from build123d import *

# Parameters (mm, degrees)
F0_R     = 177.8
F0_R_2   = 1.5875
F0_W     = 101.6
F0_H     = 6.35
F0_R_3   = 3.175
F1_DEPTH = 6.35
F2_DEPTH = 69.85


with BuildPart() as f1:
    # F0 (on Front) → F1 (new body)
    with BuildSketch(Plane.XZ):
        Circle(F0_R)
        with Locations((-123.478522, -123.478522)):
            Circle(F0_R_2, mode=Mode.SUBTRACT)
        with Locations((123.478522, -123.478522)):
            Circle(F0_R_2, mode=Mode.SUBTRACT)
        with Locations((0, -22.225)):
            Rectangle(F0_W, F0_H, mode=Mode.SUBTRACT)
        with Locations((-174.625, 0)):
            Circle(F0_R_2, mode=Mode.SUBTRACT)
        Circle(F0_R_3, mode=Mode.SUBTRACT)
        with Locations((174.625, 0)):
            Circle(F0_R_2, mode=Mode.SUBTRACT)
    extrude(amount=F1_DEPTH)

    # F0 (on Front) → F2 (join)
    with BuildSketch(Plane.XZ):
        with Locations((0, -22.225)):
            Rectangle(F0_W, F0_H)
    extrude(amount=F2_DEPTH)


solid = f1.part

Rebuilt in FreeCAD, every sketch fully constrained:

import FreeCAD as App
import Part
import Sketcher

V = App.Vector
Q = App.Units.Quantity

doc = App.newDocument("Part")
params = doc.addObject("Spreadsheet::Sheet", "Params")
for row, (alias, value) in enumerate([
    ("sketch1_diameter", "14 in"),
    ("sketch1_diameter2", "0.25 in"),
    ("sketch1_width", "4 in"),
    ("sketch1_diameter3", "0.125 in"),
    ("sketch1_height", "0.25 in"),
    ("pad1_length", "0.25 in"),
    ("sketch2_width", "4 in"),
    ("sketch2_height", "0.25 in"),
    ("pad2_length", "2.75 in"),
], start=1):
    params.set(f"A{row}", alias)
    params.set(f"B{row}", "=" + value)
    params.setAlias(f"B{row}", alias)

body = doc.addObject("PartDesign::Body", "Body")

# Sketch on XZ plane
sketch1 = body.newObject("Sketcher::SketchObject", "Sketch")
sketch1.AttachmentSupport = (doc.getObject("XZ_Plane"), [""])
sketch1.MapMode = "FlatFace"
sketch1.addGeometry(Part.Circle(V(0, 0, 0), V(0, 0, 1), 177.8), False)
sketch1.addGeometry(Part.Circle(V(-123.478522, -123.478522, 0), V(0, 0, 1), 1.5875), False)
sketch1.addGeometry(Part.Circle(V(123.478522, -123.478522, 0), V(0, 0, 1), 1.5875), False)
sketch1.addGeometry(Part.Circle(V(-174.625, 0, 0), V(0, 0, 1), 1.5875), False)
sketch1.addGeometry(Part.LineSegment(V(50.8, -25.4, 0), V(-50.8, -25.4, 0)), False)
sketch1.addGeometry(Part.LineSegment(V(-50.8, -25.4, 0), V(-50.8, -19.05, 0)), False)
sketch1.addGeometry(Part.LineSegment(V(-50.8, -19.05, 0), V(50.8, -19.05, 0)), False)
sketch1.addGeometry(Part.LineSegment(V(50.8, -19.05, 0), V(50.8, -25.4, 0)), False)
sketch1.addGeometry(Part.Circle(V(0, 0, 0), V(0, 0, 1), 3.175), False)
sketch1.addGeometry(Part.Circle(V(174.625, 0, 0), V(0, 0, 1), 1.5875), False)
sketch1.addConstraint(Sketcher.Constraint("Coincident", 4, 2, 5, 1))
sketch1.addConstraint(Sketcher.Constraint("Coincident", 5, 2, 6, 1))
sketch1.addConstraint(Sketcher.Constraint("Coincident", 6, 2, 7, 1))
sketch1.addConstraint(Sketcher.Constraint("Coincident", 7, 2, 4, 1))
sketch1.addConstraint(Sketcher.Constraint("Horizontal", 4))
sketch1.addConstraint(Sketcher.Constraint("Vertical", 5))
sketch1.addConstraint(Sketcher.Constraint("Horizontal", 6))
sketch1.addConstraint(Sketcher.Constraint("Vertical", 7))
sketch1.addConstraint(Sketcher.Constraint("Coincident", 0, 3, -1, 1))
sketch1.addConstraint(Sketcher.Constraint("Coincident", 8, 3, -1, 1))
sketch1.addConstraint(Sketcher.Constraint("Equal", 1, 2))
sketch1.addConstraint(Sketcher.Constraint("Equal", 2, 3))
sketch1.addConstraint(Sketcher.Constraint("Equal", 3, 9))
sketch1.addConstraint(Sketcher.Constraint("Symmetric", 3, 3, 9, 3, -1, 1))
sketch1.addConstraint(Sketcher.Constraint("Symmetric", 1, 3, 2, 3, -2))
sketch1.addConstraint(Sketcher.Constraint("PointOnObject", 3, 3, -1))
sketch1.addConstraint(Sketcher.Constraint("Diameter", 0, Q("14 in")))
sketch1.addConstraint(Sketcher.Constraint("Diameter", 8, Q("0.25 in")))
sketch1.addConstraint(Sketcher.Constraint("DistanceX", 4, 2, 4, 1, Q("4 in")))
sketch1.addConstraint(Sketcher.Constraint("Diameter", 1, Q("0.125 in")))
sketch1.addConstraint(Sketcher.Constraint("DistanceX", 4, 2, -1, 1, Q("2 in")))
sketch1.addConstraint(Sketcher.Constraint("DistanceY", 4, 2, -1, 1, Q("1 in")))
sketch1.addConstraint(Sketcher.Constraint("DistanceY", 5, 1, 5, 2, Q("0.25 in")))
sketch1.addConstraint(Sketcher.Constraint("DistanceX", 3, 3, 9, 3, Q("13.75 in")))
sketch1.addConstraint(Sketcher.Constraint("DistanceX", 1, 3, -1, 1, Q("123.478522 mm")))
sketch1.addConstraint(Sketcher.Constraint("DistanceY", 1, 3, -1, 1, Q("123.478522 mm")))
sketch1.setExpression("Constraints[16]", "Params.sketch1_diameter")
sketch1.setExpression("Constraints[17]", "Params.sketch1_diameter2")
sketch1.setExpression("Constraints[18]", "Params.sketch1_width")
sketch1.setExpression("Constraints[19]", "Params.sketch1_diameter3")
sketch1.setExpression("Constraints[22]", "Params.sketch1_height")
pad1 = body.newObject("PartDesign::Pad", "Pad")
pad1.Profile = sketch1
pad1.setExpression("Length", "Params.pad1_length")

# Sketch on XZ plane
sketch2 = body.newObject("Sketcher::SketchObject", "Sketch001")
sketch2.AttachmentSupport = (doc.getObject("XZ_Plane"), [""])
sketch2.MapMode = "FlatFace"
sketch2.addGeometry(Part.LineSegment(V(-50.8, -19.05, 0), V(-50.8, -25.4, 0)), False)
sketch2.addGeometry(Part.LineSegment(V(-50.8, -25.4, 0), V(50.8, -25.4, 0)), False)
sketch2.addGeometry(Part.LineSegment(V(50.8, -25.4, 0), V(50.8, -19.05, 0)), False)
sketch2.addGeometry(Part.LineSegment(V(50.8, -19.05, 0), V(-50.8, -19.05, 0)), False)
sketch2.addConstraint(Sketcher.Constraint("Coincident", 0, 2, 1, 1))
sketch2.addConstraint(Sketcher.Constraint("Coincident", 1, 2, 2, 1))
sketch2.addConstraint(Sketcher.Constraint("Coincident", 2, 2, 3, 1))
sketch2.addConstraint(Sketcher.Constraint("Coincident", 3, 2, 0, 1))
sketch2.addConstraint(Sketcher.Constraint("Vertical", 0))
sketch2.addConstraint(Sketcher.Constraint("Horizontal", 1))
sketch2.addConstraint(Sketcher.Constraint("Vertical", 2))
sketch2.addConstraint(Sketcher.Constraint("Horizontal", 3))
sketch2.addConstraint(Sketcher.Constraint("DistanceX", 1, 1, 1, 2, Q("4 in")))
sketch2.addConstraint(Sketcher.Constraint("DistanceX", 0, 2, -1, 1, Q("2 in")))
sketch2.addConstraint(Sketcher.Constraint("DistanceY", 0, 2, -1, 1, Q("1 in")))
sketch2.addConstraint(Sketcher.Constraint("DistanceY", 0, 2, 0, 1, Q("0.25 in")))
sketch2.setExpression("Constraints[8]", "Params.sketch2_width")
sketch2.setExpression("Constraints[11]", "Params.sketch2_height")
pad2 = body.newObject("PartDesign::Pad", "Pad001")
pad2.Profile = sketch2
pad2.setExpression("Length", "Params.pad2_length")

doc.recompute()
